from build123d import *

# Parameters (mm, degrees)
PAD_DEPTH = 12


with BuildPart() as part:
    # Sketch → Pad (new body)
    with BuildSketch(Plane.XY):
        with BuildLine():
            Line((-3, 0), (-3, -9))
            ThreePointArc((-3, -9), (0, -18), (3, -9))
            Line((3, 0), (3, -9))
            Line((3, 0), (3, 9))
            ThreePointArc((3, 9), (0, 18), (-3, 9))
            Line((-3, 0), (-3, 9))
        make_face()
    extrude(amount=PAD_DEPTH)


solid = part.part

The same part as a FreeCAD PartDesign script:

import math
import FreeCAD as App
import Part
import Sketcher
from FreeCAD import Vector

doc = App.newDocument("Part")
body = doc.addObject("PartDesign::Body", "Body")

# Sketch on XY plane
sketch1 = body.newObject("Sketcher::SketchObject", "Sketch")
sketch1.AttachmentSupport = (doc.getObject("XY_Plane"), [""])
sketch1.MapMode = "FlatFace"
sketch1.addGeometry([
    Part.ArcOfCircle(Part.Circle(Vector(0, -13, 0), Vector(0, 0, 1), 5), math.radians(127), math.radians(413)),
    Part.LineSegment(Vector(3, -9, 0), Vector(3, 9, 0)),
    Part.ArcOfCircle(Part.Circle(Vector(0, 13, 0), Vector(0, 0, 1), 5), math.radians(-53), math.radians(233)),
    Part.LineSegment(Vector(-3, 9, 0), Vector(-3, -9, 0)),
], False)
sketch1.addConstraint([
    Sketcher.Constraint("Coincident", 0, 2, 1, 1),
    Sketcher.Constraint("Coincident", 1, 2, 2, 1),
    Sketcher.Constraint("Coincident", 2, 2, 3, 1),
    Sketcher.Constraint("Coincident", 3, 2, 0, 1),
    Sketcher.Constraint("Vertical", 1),
    Sketcher.Constraint("Vertical", 3),
    Sketcher.Constraint("Equal", 0, 2),
    Sketcher.Constraint("Symmetric", 0, 3, 2, 3, -1, 1),
    Sketcher.Constraint("Symmetric", 1, 2, 2, 2, -2),
    Sketcher.Constraint("Radius", 0, 5.0),
    Sketcher.Constraint("DistanceY", 1, 1, 1, 2, 18.0),
    Sketcher.Constraint("DistanceY", 0, 3, -1, 1, 13.0),
])
pad1 = body.newObject("PartDesign::Pad", "Pad")
pad1.Profile = sketch1
pad1.Length = 12

doc.recompute()
